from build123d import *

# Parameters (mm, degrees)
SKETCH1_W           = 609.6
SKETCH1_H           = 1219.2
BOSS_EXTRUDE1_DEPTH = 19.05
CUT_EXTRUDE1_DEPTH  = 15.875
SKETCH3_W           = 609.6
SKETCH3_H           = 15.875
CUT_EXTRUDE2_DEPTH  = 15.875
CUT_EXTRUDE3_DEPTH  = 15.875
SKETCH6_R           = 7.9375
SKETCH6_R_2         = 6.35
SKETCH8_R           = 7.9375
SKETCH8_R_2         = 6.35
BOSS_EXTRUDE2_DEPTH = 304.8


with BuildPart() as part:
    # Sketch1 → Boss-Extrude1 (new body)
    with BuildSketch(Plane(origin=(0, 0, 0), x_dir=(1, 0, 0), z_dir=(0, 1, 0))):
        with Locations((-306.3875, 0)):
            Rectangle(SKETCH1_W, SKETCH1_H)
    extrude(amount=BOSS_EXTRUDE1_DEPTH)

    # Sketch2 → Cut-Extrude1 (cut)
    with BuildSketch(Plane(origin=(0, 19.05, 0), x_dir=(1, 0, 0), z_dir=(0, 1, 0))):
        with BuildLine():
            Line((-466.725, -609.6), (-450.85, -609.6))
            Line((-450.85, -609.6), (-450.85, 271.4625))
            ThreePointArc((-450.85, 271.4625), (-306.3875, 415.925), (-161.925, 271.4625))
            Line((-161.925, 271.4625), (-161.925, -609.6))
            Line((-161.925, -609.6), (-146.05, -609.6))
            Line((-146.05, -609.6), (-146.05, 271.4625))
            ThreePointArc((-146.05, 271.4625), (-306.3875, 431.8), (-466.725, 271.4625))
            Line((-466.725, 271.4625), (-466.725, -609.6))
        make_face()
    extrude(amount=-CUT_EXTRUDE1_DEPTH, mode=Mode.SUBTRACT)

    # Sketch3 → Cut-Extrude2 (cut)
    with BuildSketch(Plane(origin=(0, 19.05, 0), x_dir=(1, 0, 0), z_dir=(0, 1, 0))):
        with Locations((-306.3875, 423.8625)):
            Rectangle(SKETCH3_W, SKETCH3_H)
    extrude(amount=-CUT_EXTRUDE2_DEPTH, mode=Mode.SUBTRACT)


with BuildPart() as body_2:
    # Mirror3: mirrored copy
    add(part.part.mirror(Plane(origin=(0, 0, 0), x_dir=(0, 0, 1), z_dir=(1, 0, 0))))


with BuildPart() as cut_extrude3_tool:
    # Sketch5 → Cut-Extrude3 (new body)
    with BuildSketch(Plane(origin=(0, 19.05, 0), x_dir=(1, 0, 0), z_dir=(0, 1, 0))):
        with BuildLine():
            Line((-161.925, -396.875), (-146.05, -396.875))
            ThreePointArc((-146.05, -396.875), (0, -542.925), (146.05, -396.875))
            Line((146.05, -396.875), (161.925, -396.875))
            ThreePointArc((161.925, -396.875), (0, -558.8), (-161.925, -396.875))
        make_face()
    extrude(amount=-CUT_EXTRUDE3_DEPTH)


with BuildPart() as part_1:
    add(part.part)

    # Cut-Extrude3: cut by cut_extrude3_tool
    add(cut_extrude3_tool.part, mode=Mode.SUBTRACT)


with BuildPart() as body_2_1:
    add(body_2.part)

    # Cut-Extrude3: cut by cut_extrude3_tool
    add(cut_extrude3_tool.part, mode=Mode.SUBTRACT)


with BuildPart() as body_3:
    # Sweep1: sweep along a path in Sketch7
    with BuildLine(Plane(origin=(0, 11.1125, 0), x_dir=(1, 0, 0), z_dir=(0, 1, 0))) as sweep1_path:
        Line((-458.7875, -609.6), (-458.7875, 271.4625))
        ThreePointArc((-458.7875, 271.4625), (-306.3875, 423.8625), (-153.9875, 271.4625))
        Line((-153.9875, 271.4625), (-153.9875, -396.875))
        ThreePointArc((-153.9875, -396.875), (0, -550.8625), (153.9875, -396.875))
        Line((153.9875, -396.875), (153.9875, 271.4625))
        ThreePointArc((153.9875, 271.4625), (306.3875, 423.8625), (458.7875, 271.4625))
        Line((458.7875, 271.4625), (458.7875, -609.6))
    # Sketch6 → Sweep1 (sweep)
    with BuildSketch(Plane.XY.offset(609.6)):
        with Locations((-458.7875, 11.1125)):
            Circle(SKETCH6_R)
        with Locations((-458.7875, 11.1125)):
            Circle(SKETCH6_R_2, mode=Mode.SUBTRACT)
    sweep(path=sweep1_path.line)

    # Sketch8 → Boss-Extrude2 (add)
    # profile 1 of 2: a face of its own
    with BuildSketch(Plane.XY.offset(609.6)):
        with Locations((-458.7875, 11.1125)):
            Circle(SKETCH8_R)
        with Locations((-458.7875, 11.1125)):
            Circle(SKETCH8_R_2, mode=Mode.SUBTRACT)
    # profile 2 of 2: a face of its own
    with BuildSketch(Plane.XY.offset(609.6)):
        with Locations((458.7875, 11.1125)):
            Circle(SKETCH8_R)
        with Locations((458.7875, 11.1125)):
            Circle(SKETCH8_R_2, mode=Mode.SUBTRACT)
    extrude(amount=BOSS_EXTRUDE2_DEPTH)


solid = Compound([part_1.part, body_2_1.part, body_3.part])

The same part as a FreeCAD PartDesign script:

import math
import FreeCAD as App
import Part
import Sketcher

V = App.Vector
Q = App.Units.Quantity

doc = App.newDocument("Part")
body = doc.addObject("PartDesign::Body", "Body")

# Sketch on XZ plane
sketch1 = body.newObject("Sketcher::SketchObject", "Sketch")
sketch1.AttachmentSupport = (doc.getObject("XZ_Plane"), [""])
sketch1.MapMode = "FlatFace"
sketch1.addGeometry([
    Part.LineSegment(V(-611.1875, -609.6, 0), V(-611.1875, 609.6, 0)),
    Part.LineSegment(V(-611.1875, 609.6, 0), V(-1.5875, 609.6, 0)),
    Part.LineSegment(V(-1.5875, 609.6, 0), V(-1.5875, -609.6, 0)),
    Part.LineSegment(V(-1.5875, -609.6, 0), V(-611.1875, -609.6, 0)),
], False)
sketch1.addConstraint([
    Sketcher.Constraint("Coincident", 0, 2, 1, 1),
    Sketcher.Constraint("Coincident", 1, 2, 2, 1),
    Sketcher.Constraint("Coincident", 2, 2, 3, 1),
    Sketcher.Constraint("Coincident", 3, 2, 0, 1),
    Sketcher.Constraint("Vertical", 0),
    Sketcher.Constraint("Horizontal", 1),
    Sketcher.Constraint("Vertical", 2),
    Sketcher.Constraint("Horizontal", 3),
    Sketcher.Constraint("DistanceX", 1, 1, 1, 2, Q("24 in")),
    Sketcher.Constraint("DistanceY", 0, 1, 0, 2, Q("48 in")),
    Sketcher.Constraint("DistanceY", -1, 1, 0, 2, Q("24 in")),
    Sketcher.Constraint("DistanceX", 0, 2, -1, 1, Q("24.0625 in")),
])
pad1 = body.newObject("PartDesign::Pad", "Pad")
pad1.Profile = sketch1
pad1.Length = Q("0.75 in")
pad1.Reversed = True

# Sketch on XZ plane
sketch2 = body.newObject("Sketcher::SketchObject", "Sketch001")
sketch2.AttachmentSupport = (doc.getObject("XZ_Plane"), [""])
sketch2.MapMode = "FlatFace"
sketch2.AttachmentOffset = App.Placement(V(0, 0, -0.75 * 25.4), App.Rotation())
sketch2.addGeometry([
    Part.LineSegment(V(-466.725, 609.6, 0), V(-450.85, 609.6, 0)),  # 0
    Part.LineSegment(V(-450.85, 609.6, 0), V(-450.85, -271.4625, 0)),  # 1
    Part.ArcOfCircle(Part.Circle(V(-306.3875, -271.4625, 0), V(0, 0, 1), 144.4625), math.radians(180), math.radians(360)),  # 2
    Part.LineSegment(V(-161.925, -271.4625, 0), V(-161.925, 609.6, 0)),  # 3
    Part.LineSegment(V(-161.925, 609.6, 0), V(-146.05, 609.6, 0)),  # 4
    Part.LineSegment(V(-146.05, 609.6, 0), V(-146.05, -271.4625, 0)),  # 5
    Part.ArcOfCircle(Part.Circle(V(-306.3875, -271.4625, 0), V(0, 0, 1), 160.3375), math.radians(180), math.radians(360)),  # 6
    Part.LineSegment(V(-466.725, -271.4625, 0), V(-466.725, 609.6, 0)),  # 7
], False)
sketch2.addConstraint([
    Sketcher.Constraint("Coincident", 0, 2, 1, 1),
    Sketcher.Constraint("Tangent", 1, 2, 2, 1),
    Sketcher.Constraint("Tangent", 2, 2, 3, 1),
    Sketcher.Constraint("Coincident", 3, 2, 4, 1),
    Sketcher.Constraint("Coincident", 4, 2, 5, 1),
    Sketcher.Constraint("Tangent", 5, 2, 6, 2),
    Sketcher.Constraint("Tangent", 6, 1, 7, 1),
    Sketcher.Constraint("Coincident", 7, 2, 0, 1),
    Sketcher.Constraint("Horizontal", 0),
    Sketcher.Constraint("Vertical", 1),
    Sketcher.Constraint("Vertical", 3),
    Sketcher.Constraint("Horizontal", 4),
    Sketcher.Constraint("Vertical", 5),
    Sketcher.Constraint("Vertical", 7),
    Sketcher.Constraint("Coincident", 6, 3, 2, 3),
    Sketcher.Constraint("Horizontal", 0, 2, 3, 2),
    Sketcher.Constraint("DistanceY", -1, 1, 0, 2, Q("24 in")),
    Sketcher.Constraint("Radius", 2, Q("5.6875 in")),
    Sketcher.Constraint("Radius", 6, Q("6.3125 in")),
    Sketcher.Constraint("DistanceY", 1, 2, 1, 1, Q("34.6875 in")),
    Sketcher.Constraint("DistanceX", 0, 2, -1, 1, Q("17.75 in")),
])
pocket1 = body.newObject("PartDesign::Pocket", "Pocket")
pocket1.Profile = sketch2
pocket1.Length = Q("0.625 in")
pocket1.Reversed = True

# Sketch on XZ plane
sketch3 = body.newObject("Sketcher::SketchObject", "Sketch002")
sketch3.AttachmentSupport = (doc.getObject("XZ_Plane"), [""])
sketch3.MapMode = "FlatFace"
sketch3.AttachmentOffset = App.Placement(V(0, 0, -0.75 * 25.4), App.Rotation())
sketch3.addGeometry([
    Part.LineSegment(V(-611.1875, -431.8, 0), V(-611.1875, -415.925, 0)),
    Part.LineSegment(V(-611.1875, -415.925, 0), V(-1.5875, -415.925, 0)),
    Part.LineSegment(V(-1.5875, -415.925, 0), V(-1.5875, -431.8, 0)),
    Part.LineSegment(V(-1.5875, -431.8, 0), V(-611.1875, -431.8, 0)),
], False)
sketch3.addConstraint([
    Sketcher.Constraint("Coincident", 0, 2, 1, 1),
    Sketcher.Constraint("Coincident", 1, 2, 2, 1),
    Sketcher.Constraint("Coincident", 2, 2, 3, 1),
    Sketcher.Constraint("Coincident", 3, 2, 0, 1),
    Sketcher.Constraint("Vertical", 0),
    Sketcher.Constraint("Horizontal", 1),
    Sketcher.Constraint("Vertical", 2),
    Sketcher.Constraint("Horizontal", 3),
    Sketcher.Constraint("DistanceX", 1, 1, 1, 2, Q("24 in")),
    Sketcher.Constraint("DistanceY", 2, 2, -1, 1, Q("17 in")),
    Sketcher.Constraint("DistanceY", 0, 1, 0, 2, Q("0.625 in")),
    Sketcher.Constraint("DistanceX", 0, 2, -1, 1, Q("24.0625 in")),
])
pocket2 = body.newObject("PartDesign::Pocket", "Pocket001")
pocket2.Profile = sketch3
pocket2.Length = Q("0.625 in")
pocket2.Reversed = True
body2 = doc.addObject("PartDesign::Body", "Body001")
doc.recompute()

mirroring = doc.addObject("Part::Mirroring", "Mirroring")
mirroring.Source = body
mirroring.Base = V(0, 0, 0)
mirroring.Normal = V(1, 0, 0)
body2.BaseFeature = mirroring
doc.recompute()
body3 = doc.addObject("PartDesign::Body", "Body002")

# Sketch on XZ plane
sketch4 = body3.newObject("Sketcher::SketchObject", "Sketch003")
sketch4.AttachmentSupport = (doc.getObject("XZ_Plane002"), [""])
sketch4.MapMode = "FlatFace"
sketch4.AttachmentOffset = App.Placement(V(0, 0, -0.75 * 25.4), App.Rotation())
sketch4.addGeometry([
    Part.LineSegment(V(-146.05, 396.875, 0), V(-161.925, 396.875, 0)),
    Part.ArcOfCircle(Part.Circle(V(0, 396.875, 0), V(0, 0, 1), 161.925), math.radians(0), math.radians(180)),
    Part.LineSegment(V(161.925, 396.875, 0), V(146.05, 396.875, 0)),
    Part.ArcOfCircle(Part.Circle(V(0, 396.875, 0), V(0, 0, 1), 146.05), math.radians(0), math.radians(180)),
], False)
sketch4.addConstraint([
    Sketcher.Constraint("Coincident", 0, 2, 1, 2),
    Sketcher.Constraint("Coincident", 1, 1, 2, 1),
    Sketcher.Constraint("Coincident", 2, 2, 3, 1),
    Sketcher.Constraint("Coincident", 3, 2, 0, 1),
    Sketcher.Constraint("Horizontal", 0),
    Sketcher.Constraint("Horizontal", 2),
    Sketcher.Constraint("Coincident", 3, 3, 1, 3),
    Sketcher.Constraint("Symmetric", 0, 2, 1, 1, -2),
    Sketcher.Constraint("Horizontal", 3, 3, 0, 2),
    Sketcher.Constraint("Radius", 3, Q("5.75 in")),
    Sketcher.Constraint("Radius", 1, Q("6.375 in")),
    Sketcher.Constraint("DistanceY", -1, 1, 1, 3, Q("15.625 in")),
])
pad2 = body3.newObject("PartDesign::Pad", "Pad001")
pad2.Profile = sketch4
pad2.Length = Q("0.625 in")
doc.recompute()

body4 = doc.addObject("PartDesign::Body", "Body003")
body4.BaseFeature = body3
boolean = body.newObject("PartDesign::Boolean", "Boolean")
boolean.Type = "Cut"
boolean.addObjects([body4])
doc.recompute()

boolean2 = body2.newObject("PartDesign::Boolean", "Boolean001")
boolean2.Type = "Cut"
boolean2.addObjects([body3])
body5 = doc.addObject("PartDesign::Body", "Body004")

# Sketch on XY plane
sketch5 = body5.newObject("Sketcher::SketchObject", "Sketch004")
sketch5.AttachmentSupport = (doc.getObject("XY_Plane004"), [""])
sketch5.MapMode = "FlatFace"
sketch5.AttachmentOffset = App.Placement(V(0, 0, 24 * 25.4), App.Rotation())
sketch5.addGeometry([
    Part.Circle(V(-458.7875, 11.1125, 0), V(0, 0, 1), 7.9375),
    Part.Circle(V(-458.7875, 11.1125, 0), V(0, 0, 1), 6.35),
], False)
sketch5.addConstraint([
    Sketcher.Constraint("Coincident", 1, 3, 0, 3),
    Sketcher.Constraint("Diameter", 1, Q("0.5 in")),
    Sketcher.Constraint("Diameter", 0, Q("0.625 in")),
    Sketcher.Constraint("DistanceX", 0, 3, -1, 1, Q("18.0625 in")),
    Sketcher.Constraint("DistanceY", -1, 1, 0, 3, Q("0.4375 in")),
])

# Sketch on XZ plane
sketch6 = body5.newObject("Sketcher::SketchObject", "Sketch005")
sketch6.AttachmentSupport = (doc.getObject("XZ_Plane004"), [""])
sketch6.MapMode = "FlatFace"
sketch6.AttachmentOffset = App.Placement(V(0, 0, -0.4375 * 25.4), App.Rotation())
sketch6.addGeometry([
    Part.LineSegment(V(-458.7875, 609.6, 0), V(-458.7875, -271.4625, 0)),  # 0
    Part.ArcOfCircle(Part.Circle(V(-306.3875, -271.4625, 0), V(0, 0, 1), 152.4), math.radians(180), math.radians(360)),  # 1
    Part.LineSegment(V(-153.9875, -271.4625, 0), V(-153.9875, 396.875, 0)),  # 2
    Part.ArcOfCircle(Part.Circle(V(0, 396.875, 0), V(0, 0, 1), 153.9875), math.radians(0), math.radians(180)),  # 3
    Part.LineSegment(V(153.9875, 396.875, 0), V(153.9875, -271.4625, 0)),  # 4
    Part.ArcOfCircle(Part.Circle(V(306.3875, -271.4625, 0), V(0, 0, 1), 152.4), math.radians(180), math.radians(360)),  # 5
    Part.LineSegment(V(458.7875, -271.4625, 0), V(458.7875, 609.6, 0)),  # 6
], False)
sketch6.addConstraint([
    Sketcher.Constraint("Tangent", 0, 2, 1, 1),
    Sketcher.Constraint("Tangent", 1, 2, 2, 1),
    Sketcher.Constraint("Tangent", 2, 2, 3, 2),
    Sketcher.Constraint("Tangent", 3, 1, 4, 1),
    Sketcher.Constraint("Tangent", 4, 2, 5, 1),
    Sketcher.Constraint("Tangent", 5, 2, 6, 1),
    Sketcher.Constraint("Vertical", 0),
    Sketcher.Constraint("Vertical", 2),
    Sketcher.Constraint("Vertical", 4),
    Sketcher.Constraint("Vertical", 6),
    Sketcher.Constraint("Equal", 1, 5),
    Sketcher.Constraint("Symmetric", 1, 3, 5, 3, -2),
    Sketcher.Constraint("Horizontal", 0, 1, 6, 2),
    Sketcher.Constraint("Radius", 1, Q("6 in")),
    Sketcher.Constraint("DistanceY", -1, 1, 0, 1, Q("24 in")),
    Sketcher.Constraint("Radius", 3, Q("6.0625 in")),
    Sketcher.Constraint("DistanceY", 0, 2, 0, 1, Q("34.6875 in")),
    Sketcher.Constraint("DistanceY", 2, 1, 2, 2, Q("26.3125 in")),
])
doc.recompute()

additivepipe = body5.newObject("PartDesign::AdditivePipe", "AdditivePipe")
additivepipe.Profile = sketch5
additivepipe.Spine = (sketch6, ["Edge1", "Edge2", "Edge3", "Edge4", "Edge5", "Edge6", "Edge7"])

# Sketch on XY plane
sketch7 = body5.newObject("Sketcher::SketchObject", "Sketch006")
sketch7.AttachmentSupport = (doc.getObject("XY_Plane004"), [""])
sketch7.MapMode = "FlatFace"
sketch7.AttachmentOffset = App.Placement(V(0, 0, 24 * 25.4), App.Rotation())
sketch7.addGeometry([
    Part.Circle(V(-458.7875, 11.1125, 0), V(0, 0, 1), 7.9375),
    Part.Circle(V(-458.7875, 11.1125, 0), V(0, 0, 1), 6.35),
    Part.Circle(V(458.7875, 11.1125, 0), V(0, 0, 1), 7.9375),
    Part.Circle(V(458.7875, 11.1125, 0), V(0, 0, 1), 6.35),
], False)
sketch7.addConstraint([
    Sketcher.Constraint("Coincident", 1, 3, 0, 3),
    Sketcher.Constraint("Coincident", 3, 3, 2, 3),
    Sketcher.Constraint("Equal", 0, 2),
    Sketcher.Constraint("Equal", 1, 3),
    Sketcher.Constraint("Symmetric", 0, 3, 2, 3, -2),
    Sketcher.Constraint("Diameter", 1, Q("0.5 in")),
    Sketcher.Constraint("Diameter", 0, Q("0.625 in")),
    Sketcher.Constraint("DistanceX", 0, 3, -1, 1, Q("18.0625 in")),
    Sketcher.Constraint("DistanceY", -1, 1, 0, 3, Q("0.4375 in")),
])
pad3 = body5.newObject("PartDesign::Pad", "Pad002")
pad3.Profile = sketch7
pad3.Length = Q("12 in")
mirroring.Visibility = False

doc.recompute()
